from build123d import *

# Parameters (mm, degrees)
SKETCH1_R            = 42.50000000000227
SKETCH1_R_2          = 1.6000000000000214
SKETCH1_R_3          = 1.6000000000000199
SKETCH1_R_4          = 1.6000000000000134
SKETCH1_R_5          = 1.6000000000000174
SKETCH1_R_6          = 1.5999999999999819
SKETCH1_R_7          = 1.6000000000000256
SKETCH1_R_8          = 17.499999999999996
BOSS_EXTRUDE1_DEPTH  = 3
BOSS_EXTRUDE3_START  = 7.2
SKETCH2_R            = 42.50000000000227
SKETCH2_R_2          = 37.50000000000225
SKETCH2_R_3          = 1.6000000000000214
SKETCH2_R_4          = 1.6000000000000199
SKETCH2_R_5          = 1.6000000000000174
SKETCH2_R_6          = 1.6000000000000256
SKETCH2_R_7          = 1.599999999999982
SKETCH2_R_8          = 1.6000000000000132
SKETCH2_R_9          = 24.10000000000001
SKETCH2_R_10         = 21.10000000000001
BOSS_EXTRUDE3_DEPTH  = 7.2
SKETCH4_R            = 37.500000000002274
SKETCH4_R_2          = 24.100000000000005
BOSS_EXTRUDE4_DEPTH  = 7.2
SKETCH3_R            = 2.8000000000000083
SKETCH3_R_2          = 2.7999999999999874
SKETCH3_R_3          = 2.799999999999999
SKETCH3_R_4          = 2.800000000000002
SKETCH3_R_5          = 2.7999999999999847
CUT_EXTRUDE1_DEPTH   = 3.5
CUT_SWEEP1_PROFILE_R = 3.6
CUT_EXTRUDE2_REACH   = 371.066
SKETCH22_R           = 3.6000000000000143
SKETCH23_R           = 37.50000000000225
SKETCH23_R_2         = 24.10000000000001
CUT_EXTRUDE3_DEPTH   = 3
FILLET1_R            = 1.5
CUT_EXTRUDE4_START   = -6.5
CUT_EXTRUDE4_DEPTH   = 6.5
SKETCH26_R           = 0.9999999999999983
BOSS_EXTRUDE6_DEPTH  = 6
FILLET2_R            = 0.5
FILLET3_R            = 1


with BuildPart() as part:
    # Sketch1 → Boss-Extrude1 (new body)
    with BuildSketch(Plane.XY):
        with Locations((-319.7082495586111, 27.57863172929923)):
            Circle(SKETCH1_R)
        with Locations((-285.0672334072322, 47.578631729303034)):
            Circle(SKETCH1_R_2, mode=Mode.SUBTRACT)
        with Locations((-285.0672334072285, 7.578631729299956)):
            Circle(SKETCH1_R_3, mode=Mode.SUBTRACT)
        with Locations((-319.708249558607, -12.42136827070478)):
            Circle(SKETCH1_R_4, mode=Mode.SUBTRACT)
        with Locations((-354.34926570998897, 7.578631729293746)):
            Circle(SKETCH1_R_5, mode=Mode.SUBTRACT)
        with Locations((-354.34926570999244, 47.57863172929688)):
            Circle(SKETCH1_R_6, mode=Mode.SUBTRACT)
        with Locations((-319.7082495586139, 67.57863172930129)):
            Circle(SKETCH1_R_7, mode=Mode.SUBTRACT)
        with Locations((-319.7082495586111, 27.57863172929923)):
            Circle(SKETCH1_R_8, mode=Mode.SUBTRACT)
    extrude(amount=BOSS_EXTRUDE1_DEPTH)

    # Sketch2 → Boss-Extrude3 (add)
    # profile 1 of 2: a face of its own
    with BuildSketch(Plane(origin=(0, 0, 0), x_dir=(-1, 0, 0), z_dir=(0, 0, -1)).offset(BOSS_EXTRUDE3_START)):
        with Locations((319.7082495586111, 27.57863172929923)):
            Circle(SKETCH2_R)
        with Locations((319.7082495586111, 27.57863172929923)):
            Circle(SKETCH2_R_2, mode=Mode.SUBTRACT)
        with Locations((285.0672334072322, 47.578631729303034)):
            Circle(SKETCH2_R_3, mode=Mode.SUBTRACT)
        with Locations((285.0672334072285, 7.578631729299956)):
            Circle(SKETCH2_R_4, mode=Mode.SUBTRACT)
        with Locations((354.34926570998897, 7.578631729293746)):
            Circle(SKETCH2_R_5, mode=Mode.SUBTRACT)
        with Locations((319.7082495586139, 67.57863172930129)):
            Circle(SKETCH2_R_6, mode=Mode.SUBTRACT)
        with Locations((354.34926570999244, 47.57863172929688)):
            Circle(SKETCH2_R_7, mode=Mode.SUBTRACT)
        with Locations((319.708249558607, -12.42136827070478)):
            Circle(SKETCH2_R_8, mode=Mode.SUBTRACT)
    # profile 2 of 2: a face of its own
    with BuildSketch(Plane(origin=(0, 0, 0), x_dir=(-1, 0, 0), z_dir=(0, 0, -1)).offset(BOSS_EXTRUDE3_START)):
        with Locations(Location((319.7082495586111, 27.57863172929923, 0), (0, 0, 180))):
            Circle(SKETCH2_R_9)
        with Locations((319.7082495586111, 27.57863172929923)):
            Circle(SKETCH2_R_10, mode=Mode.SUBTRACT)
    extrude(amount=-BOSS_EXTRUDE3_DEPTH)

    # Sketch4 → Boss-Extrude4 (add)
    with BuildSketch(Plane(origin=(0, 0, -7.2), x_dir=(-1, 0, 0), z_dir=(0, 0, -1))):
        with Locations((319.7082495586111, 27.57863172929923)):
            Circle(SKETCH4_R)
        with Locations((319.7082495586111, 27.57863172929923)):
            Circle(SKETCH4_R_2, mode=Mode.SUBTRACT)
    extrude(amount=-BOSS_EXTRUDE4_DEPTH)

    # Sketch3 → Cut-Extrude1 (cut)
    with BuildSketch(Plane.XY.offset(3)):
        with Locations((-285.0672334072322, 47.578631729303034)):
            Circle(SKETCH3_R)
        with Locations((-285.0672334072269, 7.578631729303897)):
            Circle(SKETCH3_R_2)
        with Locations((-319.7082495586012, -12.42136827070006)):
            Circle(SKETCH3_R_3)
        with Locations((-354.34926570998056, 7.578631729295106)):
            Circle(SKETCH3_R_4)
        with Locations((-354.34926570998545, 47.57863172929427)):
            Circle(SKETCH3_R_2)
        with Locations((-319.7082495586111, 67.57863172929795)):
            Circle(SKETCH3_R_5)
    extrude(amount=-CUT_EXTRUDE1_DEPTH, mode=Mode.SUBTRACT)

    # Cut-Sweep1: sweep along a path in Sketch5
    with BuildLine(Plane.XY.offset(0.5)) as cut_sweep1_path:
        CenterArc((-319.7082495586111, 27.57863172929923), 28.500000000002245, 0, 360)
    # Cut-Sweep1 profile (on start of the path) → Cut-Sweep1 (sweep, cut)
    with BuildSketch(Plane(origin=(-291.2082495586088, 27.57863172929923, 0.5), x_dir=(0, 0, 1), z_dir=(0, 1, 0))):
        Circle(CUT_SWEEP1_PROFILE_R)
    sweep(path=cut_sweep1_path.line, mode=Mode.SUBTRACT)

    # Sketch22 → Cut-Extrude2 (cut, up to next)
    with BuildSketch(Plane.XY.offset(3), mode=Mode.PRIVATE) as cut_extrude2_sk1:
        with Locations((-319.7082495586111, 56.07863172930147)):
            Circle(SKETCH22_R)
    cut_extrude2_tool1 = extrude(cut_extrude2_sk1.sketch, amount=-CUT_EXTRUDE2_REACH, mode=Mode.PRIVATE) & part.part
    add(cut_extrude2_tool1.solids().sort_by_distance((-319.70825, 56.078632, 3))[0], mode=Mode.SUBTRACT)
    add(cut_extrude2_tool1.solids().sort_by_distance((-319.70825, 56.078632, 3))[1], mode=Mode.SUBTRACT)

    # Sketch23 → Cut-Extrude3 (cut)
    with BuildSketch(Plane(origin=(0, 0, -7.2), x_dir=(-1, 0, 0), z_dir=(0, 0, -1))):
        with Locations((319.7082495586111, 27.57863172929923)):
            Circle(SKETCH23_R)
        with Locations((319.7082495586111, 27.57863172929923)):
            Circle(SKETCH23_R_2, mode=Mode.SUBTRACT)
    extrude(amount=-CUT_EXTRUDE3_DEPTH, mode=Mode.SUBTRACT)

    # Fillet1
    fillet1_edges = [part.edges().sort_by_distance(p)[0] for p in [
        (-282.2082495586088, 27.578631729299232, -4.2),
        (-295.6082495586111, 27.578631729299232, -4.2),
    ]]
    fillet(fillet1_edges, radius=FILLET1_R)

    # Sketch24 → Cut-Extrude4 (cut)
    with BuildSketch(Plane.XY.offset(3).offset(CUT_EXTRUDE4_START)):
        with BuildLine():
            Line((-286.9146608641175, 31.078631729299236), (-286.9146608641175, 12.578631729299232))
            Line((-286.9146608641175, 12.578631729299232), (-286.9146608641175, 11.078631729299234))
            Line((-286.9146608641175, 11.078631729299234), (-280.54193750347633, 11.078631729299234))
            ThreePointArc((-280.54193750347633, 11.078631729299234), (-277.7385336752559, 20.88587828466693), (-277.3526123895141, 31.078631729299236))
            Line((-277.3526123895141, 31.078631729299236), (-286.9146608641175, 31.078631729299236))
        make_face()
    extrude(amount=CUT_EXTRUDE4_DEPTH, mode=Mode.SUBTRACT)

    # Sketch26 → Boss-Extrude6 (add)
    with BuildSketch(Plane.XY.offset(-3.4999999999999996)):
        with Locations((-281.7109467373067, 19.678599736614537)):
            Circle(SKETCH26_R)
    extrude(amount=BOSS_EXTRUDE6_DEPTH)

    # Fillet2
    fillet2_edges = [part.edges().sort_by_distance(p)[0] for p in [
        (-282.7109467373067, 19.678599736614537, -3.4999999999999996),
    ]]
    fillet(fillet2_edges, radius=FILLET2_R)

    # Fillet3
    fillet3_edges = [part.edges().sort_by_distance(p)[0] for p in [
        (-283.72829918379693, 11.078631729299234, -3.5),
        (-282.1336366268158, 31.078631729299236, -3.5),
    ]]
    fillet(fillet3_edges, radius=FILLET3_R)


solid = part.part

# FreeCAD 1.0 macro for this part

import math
import FreeCAD as App
import Part
import Sketcher
Q = App.Units.Quantity


def edges_at(feature, points):
    """Names of the edges that pass closest to the given points."""
    edges = feature.Shape.Edges
    near = lambda p: min(range(len(edges)), key=lambda i: edges[i].distToShape(Part.Vertex(*p))[0])
    return sorted({f"Edge{near(p) + 1}" for p in points})

doc = App.newDocument("Part")
body = doc.addObject("PartDesign::Body", "Body")

# Sketch on XY plane
sketch1 = doc.addObject("Sketcher::SketchObject", "Sketch")
body.addObject(sketch1)
sketch1.AttachmentSupport = (doc.XY_Plane, [""])
sketch1.MapMode = "FlatFace"
sketch1.addGeometry(Part.Circle(App.Vector(-319.70825, 27.578632, 0), App.Vector(0, 0, 1), 42.5), False)
sketch1.addGeometry(Part.Circle(App.Vector(-354.349266, 7.578632, 0), App.Vector(0, 0, 1), 1.6), False)
sketch1.addGeometry(Part.Circle(App.Vector(-319.70825, -12.421368, 0), App.Vector(0, 0, 1), 1.6), False)
sketch1.addGeometry(Part.Circle(App.Vector(-285.067233, 7.578632, 0), App.Vector(0, 0, 1), 1.6), False)
sketch1.addGeometry(Part.Circle(App.Vector(-354.349266, 47.578632, 0), App.Vector(0, 0, 1), 1.6), False)
sketch1.addGeometry(Part.Circle(App.Vector(-319.70825, 27.578632, 0), App.Vector(0, 0, 1), 17.5), False)
sketch1.addGeometry(Part.Circle(App.Vector(-319.70825, 67.578632, 0), App.Vector(0, 0, 1), 1.6), False)
sketch1.addGeometry(Part.Circle(App.Vector(-285.067233, 47.578632, 0), App.Vector(0, 0, 1), 1.6), False)
sketch1.addConstraint(Sketcher.Constraint("Coincident", 5, 3, 0, 3))
sketch1.addConstraint(Sketcher.Constraint("Equal", 1, 2))
sketch1.addConstraint(Sketcher.Constraint("Equal", 2, 3))
sketch1.addConstraint(Sketcher.Constraint("Equal", 3, 4))
sketch1.addConstraint(Sketcher.Constraint("Equal", 4, 6))
sketch1.addConstraint(Sketcher.Constraint("Equal", 6, 7))
sketch1.addConstraint(Sketcher.Constraint("Horizontal", 1, 3, 3, 3))
sketch1.addConstraint(Sketcher.Constraint("Horizontal", 4, 3, 7, 3))
sketch1.addConstraint(Sketcher.Constraint("Vertical", 0, 3, 2, 3))
sketch1.addConstraint(Sketcher.Constraint("Vertical", 1, 3, 4, 3))
sketch1.addConstraint(Sketcher.Constraint("Vertical", 5, 3, 6, 3))
sketch1.addConstraint(Sketcher.Constraint("Vertical", 3, 3, 7, 3))
sketch1.addConstraint(Sketcher.Constraint("Diameter", 0, Q("85 mm")))
sketch1.addConstraint(Sketcher.Constraint("Diameter", 5, Q("35 mm")))
sketch1.addConstraint(Sketcher.Constraint("Diameter", 1, Q("3.2 mm")))
sketch1.addConstraint(Sketcher.Constraint("DistanceY", 1, 3, 0, 3, Q("20 mm")))
sketch1.addConstraint(Sketcher.Constraint("DistanceY", 2, 3, 1, 3, Q("20 mm")))
sketch1.addConstraint(Sketcher.Constraint("DistanceY", 0, 3, 4, 3, Q("20 mm")))
sketch1.addConstraint(Sketcher.Constraint("DistanceY", 4, 3, 6, 3, Q("20 mm")))
sketch1.addConstraint(Sketcher.Constraint("DistanceX", 0, 3, -1, 1, Q("319.70825 mm")))
sketch1.addConstraint(Sketcher.Constraint("DistanceY", -1, 1, 0, 3, Q("27.578632 mm")))
sketch1.addConstraint(Sketcher.Constraint("DistanceX", 1, 3, -1, 1, Q("354.349266 mm")))
sketch1.addConstraint(Sketcher.Constraint("DistanceX", 3, 3, -1, 1, Q("285.067233 mm")))
pad1 = doc.addObject("PartDesign::Pad", "Pad")
body.addObject(pad1)
pad1.Profile = sketch1
pad1.Length = 3

# Sketch on XY plane
sketch2 = doc.addObject("Sketcher::SketchObject", "Sketch001")
body.addObject(sketch2)
sketch2.AttachmentSupport = (doc.XY_Plane, [""])
sketch2.MapMode = "FlatFace"
sketch2.AttachmentOffset = App.Placement(App.Vector(0, 0, -7.2), App.Rotation())
sketch2.addGeometry(Part.Circle(App.Vector(-319.70825, 27.578632, 0), App.Vector(0, 0, 1), 42.5), False)
sketch2.addGeometry(Part.Circle(App.Vector(-319.70825, -12.421368, 0), App.Vector(0, 0, 1), 1.6), False)
sketch2.addGeometry(Part.Circle(App.Vector(-285.067233, 7.578632, 0), App.Vector(0, 0, 1), 1.6), False)
sketch2.addGeometry(Part.Circle(App.Vector(-354.349266, 7.578632, 0), App.Vector(0, 0, 1), 1.6), False)
sketch2.addGeometry(Part.Circle(App.Vector(-285.067233, 47.578632, 0), App.Vector(0, 0, 1), 1.6), False)
sketch2.addGeometry(Part.Circle(App.Vector(-319.70825, 27.578632, 0), App.Vector(0, 0, 1), 37.5), False)
sketch2.addGeometry(Part.Circle(App.Vector(-354.349266, 47.578632, 0), App.Vector(0, 0, 1), 1.6), False)
sketch2.addGeometry(Part.Circle(App.Vector(-319.70825, 67.578632, 0), App.Vector(0, 0, 1), 1.6), False)
sketch2.addGeometry(Part.Circle(App.Vector(-319.70825, 27.578632, 0), App.Vector(0, 0, 1), 24.1), False)
sketch2.addGeometry(Part.Circle(App.Vector(-319.70825, 27.578632, 0), App.Vector(0, 0, 1), 21.1), False)
sketch2.addConstraint(Sketcher.Constraint("Coincident", 5, 3, 0, 3))
sketch2.addConstraint(Sketcher.Constraint("Coincident", 8, 3, 0, 3))
sketch2.addConstraint(Sketcher.Constraint("Coincident", 9, 3, 0, 3))
sketch2.addConstraint(Sketcher.Constraint("Equal", 1, 2))
sketch2.addConstraint(Sketcher.Constraint("Equal", 2, 3))
sketch2.addConstraint(Sketcher.Constraint("Equal", 3, 4))
sketch2.addConstraint(Sketcher.Constraint("Equal", 4, 6))
sketch2.addConstraint(Sketcher.Constraint("Equal", 6, 7))
sketch2.addConstraint(Sketcher.Constraint("Horizontal", 2, 3, 3, 3))
sketch2.addConstraint(Sketcher.Constraint("Horizontal", 4, 3, 6, 3))
sketch2.addConstraint(Sketcher.Constraint("Vertical", 0, 3, 1, 3))
sketch2.addConstraint(Sketcher.Constraint("Vertical", 2, 3, 4, 3))
sketch2.addConstraint(Sketcher.Constraint("Vertical", 3, 3, 6, 3))
sketch2.addConstraint(Sketcher.Constraint("Vertical", 5, 3, 7, 3))
sketch2.addConstraint(Sketcher.Constraint("Diameter", 0, Q("85 mm")))
sketch2.addConstraint(Sketcher.Constraint("Diameter", 5, Q("75 mm")))
sketch2.addConstraint(Sketcher.Constraint("Diameter", 1, Q("3.2 mm")))
sketch2.addConstraint(Sketcher.Constraint("Diameter", 8, Q("48.2 mm")))
sketch2.addConstraint(Sketcher.Constraint("Diameter", 9, Q("42.2 mm")))
sketch2.addConstraint(Sketcher.Constraint("DistanceY", 1, 3, 0, 3, Q("40 mm")))
sketch2.addConstraint(Sketcher.Constraint("DistanceY", 2, 3, 0, 3, Q("20 mm")))
sketch2.addConstraint(Sketcher.Constraint("DistanceY", 2, 3, 4, 3, Q("40 mm")))
sketch2.addConstraint(Sketcher.Constraint("DistanceY", 6, 3, 7, 3, Q("20 mm")))
sketch2.addConstraint(Sketcher.Constraint("DistanceX", 0, 3, -1, 1, Q("319.70825 mm")))
sketch2.addConstraint(Sketcher.Constraint("DistanceY", -1, 1, 0, 3, Q("27.578632 mm")))
sketch2.addConstraint(Sketcher.Constraint("DistanceX", 2, 3, -1, 1, Q("285.067233 mm")))
sketch2.addConstraint(Sketcher.Constraint("DistanceX", 3, 3, -1, 1, Q("354.349266 mm")))
pad2 = doc.addObject("PartDesign::Pad", "Pad001")
body.addObject(pad2)
pad2.Profile = sketch2
pad2.Length = 7.2

# Sketch on XY plane
sketch3 = doc.addObject("Sketcher::SketchObject", "Sketch002")
body.addObject(sketch3)
sketch3.AttachmentSupport = (doc.XY_Plane, [""])
sketch3.MapMode = "FlatFace"
sketch3.AttachmentOffset = App.Placement(App.Vector(0, 0, -7.2), App.Rotation())
sketch3.addGeometry(Part.Circle(App.Vector(-319.70825, 27.578632, 0), App.Vector(0, 0, 1), 37.5), False)
sketch3.addGeometry(Part.Circle(App.Vector(-319.70825, 27.578632, 0), App.Vector(0, 0, 1), 24.1), False)
sketch3.addConstraint(Sketcher.Constraint("Coincident", 1, 3, 0, 3))
sketch3.addConstraint(Sketcher.Constraint("Diameter", 0, Q("75 mm")))
sketch3.addConstraint(Sketcher.Constraint("Diameter", 1, Q("48.2 mm")))
sketch3.addConstraint(Sketcher.Constraint("DistanceX", 0, 3, -1, 1, Q("319.70825 mm")))
sketch3.addConstraint(Sketcher.Constraint("DistanceY", -1, 1, 0, 3, Q("27.578632 mm")))
pad3 = doc.addObject("PartDesign::Pad", "Pad002")
body.addObject(pad3)
pad3.Profile = sketch3
pad3.Length = 7.2

# Sketch on XY plane
sketch4 = doc.addObject("Sketcher::SketchObject", "Sketch003")
body.addObject(sketch4)
sketch4.AttachmentSupport = (doc.XY_Plane, [""])
sketch4.MapMode = "FlatFace"
sketch4.AttachmentOffset = App.Placement(App.Vector(0, 0, 3), App.Rotation())
sketch4.addGeometry(Part.Circle(App.Vector(-285.067233, 47.578632, 0), App.Vector(0, 0, 1), 2.8), False)
sketch4.addGeometry(Part.Circle(App.Vector(-285.067233, 7.578632, 0), App.Vector(0, 0, 1), 2.8), False)
sketch4.addGeometry(Part.Circle(App.Vector(-319.70825, -12.421368, 0), App.Vector(0, 0, 1), 2.8), False)
sketch4.addGeometry(Part.Circle(App.Vector(-354.349266, 7.578632, 0), App.Vector(0, 0, 1), 2.8), False)
sketch4.addGeometry(Part.Circle(App.Vector(-354.349266, 47.578632, 0), App.Vector(0, 0, 1), 2.8), False)
sketch4.addGeometry(Part.Circle(App.Vector(-319.70825, 67.578632, 0), App.Vector(0, 0, 1), 2.8), False)
sketch4.addConstraint(Sketcher.Constraint("Equal", 0, 1))
sketch4.addConstraint(Sketcher.Constraint("Equal", 1, 2))
sketch4.addConstraint(Sketcher.Constraint("Equal", 2, 3))
sketch4.addConstraint(Sketcher.Constraint("Equal", 3, 4))
sketch4.addConstraint(Sketcher.Constraint("Equal", 4, 5))
sketch4.addConstraint(Sketcher.Constraint("Horizontal", 1, 3, 3, 3))
sketch4.addConstraint(Sketcher.Constraint("Horizontal", 0, 3, 4, 3))
sketch4.addConstraint(Sketcher.Constraint("Vertical", 0, 3, 1, 3))
sketch4.addConstraint(Sketcher.Constraint("Vertical", 3, 3, 4, 3))
sketch4.addConstraint(Sketcher.Constraint("Vertical", 2, 3, 5, 3))
sketch4.addConstraint(Sketcher.Constraint("Diameter", 0, Q("5.6 mm")))
sketch4.addConstraint(Sketcher.Constraint("DistanceY", 1, 3, 0, 3, Q("40 mm")))
sketch4.addConstraint(Sketcher.Constraint("DistanceY", 2, 3, 1, 3, Q("20 mm")))
sketch4.addConstraint(Sketcher.Constraint("DistanceY", 4, 3, 5, 3, Q("20 mm")))
sketch4.addConstraint(Sketcher.Constraint("DistanceY", -1, 1, 0, 3, Q("47.578632 mm")))
sketch4.addConstraint(Sketcher.Constraint("DistanceX", 2, 3, -1, 1, Q("319.70825 mm")))
sketch4.addConstraint(Sketcher.Constraint("DistanceX", 0, 3, -1, 1, Q("285.067233 mm")))
sketch4.addConstraint(Sketcher.Constraint("DistanceX", 3, 3, -1, 1, Q("354.349266 mm")))
pocket1 = doc.addObject("PartDesign::Pocket", "Pocket")
body.addObject(pocket1)
pocket1.Profile = sketch4
pocket1.Length = 3.5

# Sketch on XZ plane
sketch5 = doc.addObject("Sketcher::SketchObject", "Sketch004")
body.addObject(sketch5)
sketch5.AttachmentSupport = (doc.XZ_Plane, [""])
sketch5.MapMode = "FlatFace"
sketch5.AttachmentOffset = App.Placement(App.Vector(0, 0, -27.578632), App.Rotation())
sketch5.addGeometry(Part.Circle(App.Vector(-291.20825, 0.5, 0), App.Vector(0, 0, 1), 3.6), False)
sketch5.addConstraint(Sketcher.Constraint("Diameter", 0, Q("7.2 mm")))
sketch5.addConstraint(Sketcher.Constraint("DistanceY", -1, 1, 0, 3, Q("0.5 mm")))
sketch5.addConstraint(Sketcher.Constraint("DistanceX", 0, 3, -1, 1, Q("291.20825 mm")))

# Sketch on XY plane
sketch6 = doc.addObject("Sketcher::SketchObject", "Sketch005")
body.addObject(sketch6)
sketch6.AttachmentSupport = (doc.XY_Plane, [""])
sketch6.MapMode = "FlatFace"
sketch6.AttachmentOffset = App.Placement(App.Vector(0, 0, 0.5), App.Rotation())
sketch6.addGeometry(Part.Circle(App.Vector(-319.70825, 27.578632, 0), App.Vector(0, 0, 1), 28.5), False)
sketch6.addConstraint(Sketcher.Constraint("Diameter", 0, Q("57 mm")))
sketch6.addConstraint(Sketcher.Constraint("DistanceX", 0, 3, -1, 1, Q("319.70825 mm")))
sketch6.addConstraint(Sketcher.Constraint("DistanceY", -1, 1, 0, 3, Q("27.578632 mm")))
doc.recompute()

subtractivepipe = doc.addObject("PartDesign::SubtractivePipe", "SubtractivePipe")
body.addObject(subtractivepipe)
subtractivepipe.Profile = sketch5
subtractivepipe.Spine = (sketch6, ["Edge1"])

# Sketch on XY plane
sketch7 = doc.addObject("Sketcher::SketchObject", "Sketch006")
body.addObject(sketch7)
sketch7.AttachmentSupport = (doc.XY_Plane, [""])
sketch7.MapMode = "FlatFace"
sketch7.AttachmentOffset = App.Placement(App.Vector(0, 0, 3), App.Rotation())
sketch7.addGeometry(Part.Circle(App.Vector(-319.70825, 56.078632, 0), App.Vector(0, 0, 1), 3.6), False)
sketch7.addConstraint(Sketcher.Constraint("Diameter", 0, Q("7.2 mm")))
sketch7.addConstraint(Sketcher.Constraint("DistanceX", 0, 3, -1, 1, Q("319.70825 mm")))
sketch7.addConstraint(Sketcher.Constraint("DistanceY", -1, 1, 0, 3, Q("56.078632 mm")))
pocket2 = doc.addObject("PartDesign::Pocket", "Pocket001")
body.addObject(pocket2)
pocket2.Profile = sketch7
pocket2.Length = 2.5
pocket3 = doc.addObject("PartDesign::Pocket", "Pocket002")
body.addObject(pocket3)
pocket3.Profile = sketch7
pocket3.Length = 2.5

# Sketch on XY plane
sketch8 = doc.addObject("Sketcher::SketchObject", "Sketch007")
body.addObject(sketch8)
sketch8.AttachmentSupport = (doc.XY_Plane, [""])
sketch8.MapMode = "FlatFace"
sketch8.AttachmentOffset = App.Placement(App.Vector(0, 0, -7.2), App.Rotation())
sketch8.addGeometry(Part.Circle(App.Vector(-319.70825, 27.578632, 0), App.Vector(0, 0, 1), 37.5), False)
sketch8.addGeometry(Part.Circle(App.Vector(-319.70825, 27.578632, 0), App.Vector(0, 0, 1), 24.1), False)
sketch8.addConstraint(Sketcher.Constraint("Coincident", 1, 3, 0, 3))
sketch8.addConstraint(Sketcher.Constraint("Diameter", 0, Q("75 mm")))
sketch8.addConstraint(Sketcher.Constraint("Diameter", 1, Q("48.2 mm")))
sketch8.addConstraint(Sketcher.Constraint("DistanceX", 0, 3, -1, 1, Q("319.70825 mm")))
sketch8.addConstraint(Sketcher.Constraint("DistanceY", -1, 1, 0, 3, Q("27.578632 mm")))
pocket4 = doc.addObject("PartDesign::Pocket", "Pocket003")
body.addObject(pocket4)
pocket4.Profile = sketch8
pocket4.Length = 3
pocket4.Reversed = True
doc.recompute()

fillet = doc.addObject("PartDesign::Fillet", "Fillet")
body.addObject(fillet)
fillet.Base = (pocket4, edges_at(pocket4, [(-282.208, 27.579, -4.2), (-295.608, 27.579, -4.2)]))
fillet.Radius = 1.5

# Sketch on XY plane
sketch9 = doc.addObject("Sketcher::SketchObject", "Sketch008")
body.addObject(sketch9)
sketch9.AttachmentSupport = (doc.XY_Plane, [""])
sketch9.MapMode = "FlatFace"
sketch9.AttachmentOffset = App.Placement(App.Vector(0, 0, -3.5), App.Rotation())
sketch9.addGeometry(Part.LineSegment(App.Vector(-286.914661, 31.078632, 0), App.Vector(-286.914661, 11.078632, 0)), False)
sketch9.addGeometry(Part.LineSegment(App.Vector(-286.914661, 11.078632, 0), App.Vector(-280.541938, 11.078632, 0)), False)
sketch9.addGeometry(Part.ArcOfCircle(Part.Circle(App.Vector(-319.70825, 27.578632, 0), App.Vector(0, 0, 1), 42.5), math.radians(-22.844739), math.radians(4.723826)), False)
sketch9.addGeometry(Part.LineSegment(App.Vector(-277.352612, 31.078632, 0), App.Vector(-286.914661, 31.078632, 0)), False)
sketch9.addConstraint(Sketcher.Constraint("Coincident", 0, 2, 1, 1))
sketch9.addConstraint(Sketcher.Constraint("Coincident", 1, 2, 2, 1))
sketch9.addConstraint(Sketcher.Constraint("Coincident", 2, 2, 3, 1))
sketch9.addConstraint(Sketcher.Constraint("Coincident", 3, 2, 0, 1))
sketch9.addConstraint(Sketcher.Constraint("Vertical", 0))
sketch9.addConstraint(Sketcher.Constraint("Horizontal", 1))
sketch9.addConstraint(Sketcher.Constraint("Horizontal", 3))
sketch9.addConstraint(Sketcher.Constraint("Radius", 2, Q("42.5 mm")))
sketch9.addConstraint(Sketcher.Constraint("DistanceY", 0, 2, 0, 1, Q("20 mm")))
sketch9.addConstraint(Sketcher.Constraint("DistanceY", 0, 2, 2, 3, Q("16.5 mm")))
sketch9.addConstraint(Sketcher.Constraint("DistanceX", 3, 2, 3, 1, Q("9.562048 mm")))
sketch9.addConstraint(Sketcher.Constraint("DistanceX", 2, 3, -1, 1, Q("319.70825 mm")))
sketch9.addConstraint(Sketcher.Constraint("DistanceY", -1, 1, 2, 3, Q("27.578632 mm")))
pocket5 = doc.addObject("PartDesign::Pocket", "Pocket004")
body.addObject(pocket5)
pocket5.Profile = sketch9
pocket5.Length = 6.5
pocket5.Reversed = True

# Sketch on XY plane
sketch10 = doc.addObject("Sketcher::SketchObject", "Sketch009")
body.addObject(sketch10)
sketch10.AttachmentSupport = (doc.XY_Plane, [""])
sketch10.MapMode = "FlatFace"
sketch10.AttachmentOffset = App.Placement(App.Vector(0, 0, -3.5), App.Rotation())
sketch10.addGeometry(Part.Circle(App.Vector(-281.710947, 19.6786, 0), App.Vector(0, 0, 1), 1), False)
sketch10.addConstraint(Sketcher.Constraint("Diameter", 0, Q("2 mm")))
sketch10.addConstraint(Sketcher.Constraint("DistanceY", -1, 1, 0, 3, Q("19.6786 mm")))
sketch10.addConstraint(Sketcher.Constraint("DistanceX", 0, 3, -1, 1, Q("281.710947 mm")))
pad4 = doc.addObject("PartDesign::Pad", "Pad003")
body.addObject(pad4)
pad4.Profile = sketch10
pad4.Length = 6
doc.recompute()

fillet2 = doc.addObject("PartDesign::Fillet", "Fillet001")
body.addObject(fillet2)
fillet2.Base = (pad4, edges_at(pad4, [(-282.711, 19.679, -3.5)]))
fillet2.Radius = 0.5
doc.recompute()

fillet3 = doc.addObject("PartDesign::Fillet", "Fillet002")
body.addObject(fillet3)
fillet3.Base = (fillet2, edges_at(fillet2, [(-283.728, 11.079, -3.5), (-282.134, 31.079, -3.5)]))
fillet3.Radius = 1

doc.recompute()
